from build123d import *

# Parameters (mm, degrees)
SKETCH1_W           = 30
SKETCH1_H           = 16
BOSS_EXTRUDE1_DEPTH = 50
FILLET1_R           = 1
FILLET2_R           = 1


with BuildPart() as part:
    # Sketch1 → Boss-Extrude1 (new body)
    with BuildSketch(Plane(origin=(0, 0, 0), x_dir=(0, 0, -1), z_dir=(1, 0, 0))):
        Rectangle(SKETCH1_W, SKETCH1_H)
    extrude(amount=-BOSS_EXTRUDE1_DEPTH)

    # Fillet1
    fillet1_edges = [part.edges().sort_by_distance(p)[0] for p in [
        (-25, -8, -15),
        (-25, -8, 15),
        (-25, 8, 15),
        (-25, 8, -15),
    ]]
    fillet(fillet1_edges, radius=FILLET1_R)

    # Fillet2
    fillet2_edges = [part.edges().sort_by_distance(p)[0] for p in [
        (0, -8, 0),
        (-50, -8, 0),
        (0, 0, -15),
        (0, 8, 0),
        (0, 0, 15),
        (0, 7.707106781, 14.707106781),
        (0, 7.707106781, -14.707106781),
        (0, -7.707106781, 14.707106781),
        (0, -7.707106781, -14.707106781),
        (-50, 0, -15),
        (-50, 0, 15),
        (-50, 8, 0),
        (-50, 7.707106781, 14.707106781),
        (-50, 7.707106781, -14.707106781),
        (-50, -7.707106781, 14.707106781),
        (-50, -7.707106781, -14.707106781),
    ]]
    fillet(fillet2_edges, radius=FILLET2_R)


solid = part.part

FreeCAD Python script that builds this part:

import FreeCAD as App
import Part
import Sketcher

V = App.Vector
Q = App.Units.Quantity


def edges_at(feature, points):
    """Names of the edges that pass closest to the given points."""
    edges = feature.Shape.Edges
    near = lambda p: min(range(len(edges)), key=lambda i: edges[i].distToShape(Part.Vertex(*p))[0])
    return sorted({f"Edge{near(p) + 1}" for p in points})

doc = App.newDocument("Part")
body = doc.addObject("PartDesign::Body", "Body")

sketch1 = doc.addObject("Sketcher::SketchObject", "Sketch")
body.addObject(sketch1)
sketch1.AttachmentSupport = (doc.YZ_Plane, [""])
sketch1.MapMode = "FlatFace"
sketch1.addGeometry([
    Part.LineSegment(V(8, 15, 0), V(-8, 15, 0)),
    Part.LineSegment(V(-8, 15, 0), V(-8, -15, 0)),
    Part.LineSegment(V(-8, -15, 0), V(8, -15, 0)),
    Part.LineSegment(V(8, -15, 0), V(8, 15, 0)),
], False)
sketch1.addConstraint([
    Sketcher.Constraint("Coincident", 0, 2, 1, 1),
    Sketcher.Constraint("Coincident", 1, 2, 2, 1),
    Sketcher.Constraint("Coincident", 2, 2, 3, 1),
    Sketcher.Constraint("Coincident", 3, 2, 0, 1),
    Sketcher.Constraint("Horizontal", 0),
    Sketcher.Constraint("Vertical", 1),
    Sketcher.Constraint("Horizontal", 2),
    Sketcher.Constraint("Vertical", 3),
    Sketcher.Constraint("Symmetric", 0, 2, 2, 2, -1, 1),
    Sketcher.Constraint("DistanceX", 0, 2, 0, 1, Q("16 mm")),
    Sketcher.Constraint("DistanceY", 1, 2, 1, 1, Q("30 mm")),
])
pad1 = doc.addObject("PartDesign::Pad", "Pad")
body.addObject(pad1)
pad1.Profile = sketch1
pad1.Length = 50
pad1.Reversed = True
doc.recompute()

fillet = doc.addObject("PartDesign::Fillet", "Fillet")
body.addObject(fillet)
fillet.Base = (pad1, edges_at(pad1, [
    (-25, -8, -15),
    (-25, -8, 15),
    (-25, 8, 15),
    (-25, 8, -15),
]))
fillet.Radius = 1
doc.recompute()

fillet2 = doc.addObject("PartDesign::Fillet", "Fillet001")
body.addObject(fillet2)
fillet2.Base = (fillet, edges_at(fillet, [
    (0, -8, 0),
    (-50, -8, 0),
    (0, 0, -15),
    (0, 8, 0),
    (0, 0, 15),
    (0, 7.707, 14.707),
    (0, 7.707, -14.707),
    (0, -7.707, 14.707),
    (0, -7.707, -14.707),
    (-50, 0, -15),
    (-50, 0, 15),
    (-50, 8, 0),
    (-50, 7.707, 14.707),
    (-50, 7.707, -14.707),
    (-50, -7.707, 14.707),
    (-50, -7.707, -14.707),
]))
fillet2.Radius = 1

doc.recompute()
